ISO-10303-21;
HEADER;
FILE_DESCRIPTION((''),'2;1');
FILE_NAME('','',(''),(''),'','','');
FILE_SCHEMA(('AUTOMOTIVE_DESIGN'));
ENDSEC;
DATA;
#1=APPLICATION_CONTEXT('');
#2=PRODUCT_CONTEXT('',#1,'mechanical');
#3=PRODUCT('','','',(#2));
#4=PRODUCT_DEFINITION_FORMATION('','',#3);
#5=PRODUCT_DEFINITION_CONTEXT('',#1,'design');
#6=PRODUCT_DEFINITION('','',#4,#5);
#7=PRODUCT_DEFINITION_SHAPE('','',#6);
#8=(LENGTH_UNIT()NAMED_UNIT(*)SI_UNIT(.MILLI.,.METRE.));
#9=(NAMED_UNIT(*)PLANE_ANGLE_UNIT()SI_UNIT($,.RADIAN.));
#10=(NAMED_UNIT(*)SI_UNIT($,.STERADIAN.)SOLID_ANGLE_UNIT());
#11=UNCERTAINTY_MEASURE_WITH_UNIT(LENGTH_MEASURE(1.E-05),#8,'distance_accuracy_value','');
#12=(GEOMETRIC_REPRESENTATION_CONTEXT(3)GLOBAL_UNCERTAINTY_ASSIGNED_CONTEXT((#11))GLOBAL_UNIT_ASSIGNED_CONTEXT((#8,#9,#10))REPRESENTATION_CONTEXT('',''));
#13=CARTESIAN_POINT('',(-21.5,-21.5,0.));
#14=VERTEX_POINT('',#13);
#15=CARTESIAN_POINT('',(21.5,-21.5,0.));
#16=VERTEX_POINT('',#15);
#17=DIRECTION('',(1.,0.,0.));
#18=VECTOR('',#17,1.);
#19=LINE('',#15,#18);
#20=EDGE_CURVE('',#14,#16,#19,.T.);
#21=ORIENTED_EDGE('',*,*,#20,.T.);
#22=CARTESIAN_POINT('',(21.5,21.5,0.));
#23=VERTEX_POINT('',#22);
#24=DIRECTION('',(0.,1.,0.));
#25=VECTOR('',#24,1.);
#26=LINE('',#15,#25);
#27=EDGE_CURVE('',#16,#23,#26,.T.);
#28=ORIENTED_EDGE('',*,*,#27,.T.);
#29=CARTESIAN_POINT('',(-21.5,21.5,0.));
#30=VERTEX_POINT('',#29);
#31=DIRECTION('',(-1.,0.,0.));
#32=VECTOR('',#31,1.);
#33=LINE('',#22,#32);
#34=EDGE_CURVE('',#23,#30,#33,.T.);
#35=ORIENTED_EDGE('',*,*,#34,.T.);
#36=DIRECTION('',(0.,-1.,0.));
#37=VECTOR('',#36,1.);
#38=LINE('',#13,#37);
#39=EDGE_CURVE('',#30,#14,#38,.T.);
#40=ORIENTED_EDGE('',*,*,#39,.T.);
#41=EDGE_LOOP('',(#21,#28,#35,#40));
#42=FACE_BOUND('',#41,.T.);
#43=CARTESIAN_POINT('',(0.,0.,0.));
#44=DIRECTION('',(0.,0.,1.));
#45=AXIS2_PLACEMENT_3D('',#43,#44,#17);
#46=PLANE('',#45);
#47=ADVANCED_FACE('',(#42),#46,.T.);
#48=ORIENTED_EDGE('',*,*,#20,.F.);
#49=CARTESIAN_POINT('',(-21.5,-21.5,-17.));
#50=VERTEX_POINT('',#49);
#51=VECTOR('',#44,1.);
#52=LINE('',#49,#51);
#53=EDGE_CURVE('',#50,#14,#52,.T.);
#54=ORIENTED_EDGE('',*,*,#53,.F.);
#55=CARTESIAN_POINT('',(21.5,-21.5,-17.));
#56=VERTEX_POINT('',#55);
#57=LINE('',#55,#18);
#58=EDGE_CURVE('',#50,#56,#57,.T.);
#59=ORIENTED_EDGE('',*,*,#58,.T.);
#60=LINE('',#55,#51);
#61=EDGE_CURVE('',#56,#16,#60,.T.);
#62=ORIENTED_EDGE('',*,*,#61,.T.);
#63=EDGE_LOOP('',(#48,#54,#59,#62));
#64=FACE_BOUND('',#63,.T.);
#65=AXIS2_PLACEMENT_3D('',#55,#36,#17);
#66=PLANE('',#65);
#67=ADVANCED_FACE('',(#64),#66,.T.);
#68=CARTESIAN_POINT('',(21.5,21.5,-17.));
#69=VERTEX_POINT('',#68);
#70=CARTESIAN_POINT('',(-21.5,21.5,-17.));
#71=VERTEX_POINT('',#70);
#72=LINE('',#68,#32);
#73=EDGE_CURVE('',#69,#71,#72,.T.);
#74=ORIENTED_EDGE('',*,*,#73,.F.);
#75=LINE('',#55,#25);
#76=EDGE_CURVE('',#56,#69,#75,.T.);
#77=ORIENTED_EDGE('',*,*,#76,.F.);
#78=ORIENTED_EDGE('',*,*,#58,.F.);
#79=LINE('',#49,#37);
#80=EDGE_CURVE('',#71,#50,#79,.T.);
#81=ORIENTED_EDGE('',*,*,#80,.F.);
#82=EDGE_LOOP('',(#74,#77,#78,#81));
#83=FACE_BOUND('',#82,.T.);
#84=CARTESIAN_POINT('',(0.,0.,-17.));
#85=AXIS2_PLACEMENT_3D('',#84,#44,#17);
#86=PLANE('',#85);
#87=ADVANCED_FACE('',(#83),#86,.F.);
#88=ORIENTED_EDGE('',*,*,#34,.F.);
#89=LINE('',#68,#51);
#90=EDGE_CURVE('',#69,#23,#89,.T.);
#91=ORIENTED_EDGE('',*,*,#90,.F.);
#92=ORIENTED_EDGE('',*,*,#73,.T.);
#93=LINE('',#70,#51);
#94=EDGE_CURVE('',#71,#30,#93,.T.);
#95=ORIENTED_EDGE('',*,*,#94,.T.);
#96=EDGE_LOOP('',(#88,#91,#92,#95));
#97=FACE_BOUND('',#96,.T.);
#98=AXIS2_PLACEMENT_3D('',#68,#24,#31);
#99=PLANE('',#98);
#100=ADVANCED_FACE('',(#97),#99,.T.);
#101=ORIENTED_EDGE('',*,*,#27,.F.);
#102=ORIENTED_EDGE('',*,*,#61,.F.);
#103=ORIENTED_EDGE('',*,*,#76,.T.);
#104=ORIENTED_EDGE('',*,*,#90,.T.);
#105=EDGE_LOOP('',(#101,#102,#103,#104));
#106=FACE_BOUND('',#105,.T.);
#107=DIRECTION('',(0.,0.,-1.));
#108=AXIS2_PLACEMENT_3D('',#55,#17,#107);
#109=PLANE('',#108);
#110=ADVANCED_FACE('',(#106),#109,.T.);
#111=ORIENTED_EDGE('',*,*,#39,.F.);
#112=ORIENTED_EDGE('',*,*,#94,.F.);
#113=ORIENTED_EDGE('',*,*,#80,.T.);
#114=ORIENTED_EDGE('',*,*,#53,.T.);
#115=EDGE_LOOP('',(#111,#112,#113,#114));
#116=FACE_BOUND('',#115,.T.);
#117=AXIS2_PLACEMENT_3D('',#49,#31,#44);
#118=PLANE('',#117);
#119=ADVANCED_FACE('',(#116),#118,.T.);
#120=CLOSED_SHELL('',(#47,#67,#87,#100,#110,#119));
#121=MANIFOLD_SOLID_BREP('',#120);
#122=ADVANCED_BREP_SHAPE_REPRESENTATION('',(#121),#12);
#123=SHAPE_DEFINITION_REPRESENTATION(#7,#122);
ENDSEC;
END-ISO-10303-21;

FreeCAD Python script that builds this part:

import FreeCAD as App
import Part
import Sketcher

V = App.Vector
Q = App.Units.Quantity


def add_polygon(sketch, points):
    """Adds a closed chain of lines whose ends are joined by coincident constraints."""
    first, n = sketch.GeometryCount, len(points)
    for a, b in zip(points, points[1:] + points[:1]):
        sketch.addGeometry(Part.LineSegment(App.Vector(*a, 0), App.Vector(*b, 0)), False)
    for i in range(n):
        sketch.addConstraint(Sketcher.Constraint("Coincident", first + i, 2, first + (i + 1) % n, 1))

doc = App.newDocument("Part")
body = doc.addObject("PartDesign::Body", "Body")

# Sketch on XY plane
sketch1 = body.newObject("Sketcher::SketchObject", "Sketch")
sketch1.AttachmentSupport = (doc.getObject("XY_Plane"), [""])
sketch1.MapMode = "FlatFace"
add_polygon(sketch1, [(-21.5, 21.5), (-21.5, -21.5), (21.5, -21.5), (21.5, 21.5)])  # lines 0-3
sketch1.addConstraint([
    Sketcher.Constraint("Vertical", 0),
    Sketcher.Constraint("Horizontal", 1),
    Sketcher.Constraint("Vertical", 2),
    Sketcher.Constraint("Horizontal", 3),
    Sketcher.Constraint("Symmetric", 0, 2, 2, 2, -1, 1),
    Sketcher.Constraint("Equal", 3, 0),
    Sketcher.Constraint("DistanceX", 1, 1, 1, 2, Q("43 mm")),
])
pad1 = body.newObject("PartDesign::Pad", "Pad")
pad1.Profile = sketch1
pad1.Length = 17
pad1.Reversed = True

doc.recompute()
